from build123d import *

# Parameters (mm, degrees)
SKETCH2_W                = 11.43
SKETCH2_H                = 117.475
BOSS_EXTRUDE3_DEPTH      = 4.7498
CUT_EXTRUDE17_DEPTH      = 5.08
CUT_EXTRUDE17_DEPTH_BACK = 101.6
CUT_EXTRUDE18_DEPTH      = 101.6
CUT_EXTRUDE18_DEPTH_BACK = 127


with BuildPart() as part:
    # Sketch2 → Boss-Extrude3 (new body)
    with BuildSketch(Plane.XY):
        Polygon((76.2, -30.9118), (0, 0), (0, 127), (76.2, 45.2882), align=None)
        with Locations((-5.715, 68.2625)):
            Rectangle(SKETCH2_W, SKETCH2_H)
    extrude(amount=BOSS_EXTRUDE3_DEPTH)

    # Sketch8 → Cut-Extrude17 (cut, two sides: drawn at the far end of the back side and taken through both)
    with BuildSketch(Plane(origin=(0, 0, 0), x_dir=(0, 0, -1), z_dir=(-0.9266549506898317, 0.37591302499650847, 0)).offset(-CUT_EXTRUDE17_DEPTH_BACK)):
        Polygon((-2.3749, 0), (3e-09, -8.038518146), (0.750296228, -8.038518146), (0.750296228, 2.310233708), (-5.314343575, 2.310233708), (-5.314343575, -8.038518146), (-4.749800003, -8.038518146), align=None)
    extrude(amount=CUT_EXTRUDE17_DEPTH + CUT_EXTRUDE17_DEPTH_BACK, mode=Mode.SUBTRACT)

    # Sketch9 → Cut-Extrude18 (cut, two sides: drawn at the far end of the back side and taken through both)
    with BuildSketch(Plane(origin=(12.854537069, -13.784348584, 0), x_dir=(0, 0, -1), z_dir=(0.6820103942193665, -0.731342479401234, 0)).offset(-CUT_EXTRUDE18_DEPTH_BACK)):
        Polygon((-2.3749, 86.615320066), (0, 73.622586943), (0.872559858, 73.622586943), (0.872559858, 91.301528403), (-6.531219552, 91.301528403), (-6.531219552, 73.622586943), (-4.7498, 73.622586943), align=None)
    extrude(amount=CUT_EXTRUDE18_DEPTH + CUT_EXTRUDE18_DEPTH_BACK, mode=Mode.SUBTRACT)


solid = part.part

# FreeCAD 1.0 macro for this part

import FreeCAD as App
import Part
import Sketcher

V = App.Vector
Q = App.Units.Quantity

doc = App.newDocument("Part")
params = doc.addObject("Spreadsheet::Sheet", "Params")
for row, (alias, value) in enumerate([
    ("sketch1_height", "3 in"),
    ("sketch1_width", "0.45 in"),
    ("sketch1_height2", "4.625 in"),
    ("pad1_length", "0.187 in"),
    ("sketch2_length", "0.33 in"),
    ("pocket1_length", "0.2 in"),
    ("pocket1_length2", "4 in"),
    ("sketch3_length", "0.52 in"),
], start=1):
    params.set(f"A{row}", alias)
    params.set(f"B{row}", "=" + value)
    params.setAlias(f"B{row}", alias)

body = doc.addObject("PartDesign::Body", "Body")

# Sketch on XY plane
sketch1 = doc.addObject("Sketcher::SketchObject", "Sketch")
body.addObject(sketch1)
sketch1.AttachmentSupport = (doc.XY_Plane, [""])
sketch1.MapMode = "FlatFace"
sketch1.addGeometry([
    Part.LineSegment(V(0, 0, 0), V(76, -31, 0)),  # 0
    Part.LineSegment(V(76, -31, 0), V(76, 45, 0)),  # 1
    Part.LineSegment(V(76, 45, 0), V(0, 127, 0)),  # 2
    Part.LineSegment(V(0, 127, 0), V(-11, 127, 0)),  # 3
    Part.LineSegment(V(-11, 127, 0), V(-11, 10, 0)),  # 4
    Part.LineSegment(V(-11, 10, 0), V(0, 10, 0)),  # 5
    Part.LineSegment(V(0, 10, 0), V(0, 0, 0)),  # 6
], False)
sketch1.addConstraint([
    Sketcher.Constraint("Coincident", 0, 2, 1, 1),
    Sketcher.Constraint("Coincident", 1, 2, 2, 1),
    Sketcher.Constraint("Coincident", 2, 2, 3, 1),
    Sketcher.Constraint("Coincident", 3, 2, 4, 1),
    Sketcher.Constraint("Coincident", 4, 2, 5, 1),
    Sketcher.Constraint("Coincident", 5, 2, 6, 1),
    Sketcher.Constraint("Coincident", 6, 2, 0, 1),
    Sketcher.Constraint("Vertical", 1),
    Sketcher.Constraint("Horizontal", 3),
    Sketcher.Constraint("Vertical", 4),
    Sketcher.Constraint("Horizontal", 5),
    Sketcher.Constraint("Vertical", 6),
    Sketcher.Constraint("Coincident", 6, 2, -1, 1),
    Sketcher.Constraint("PointOnObject", 2, 2, -2),
    Sketcher.Constraint("DistanceY", 1, 1, 1, 2, Q("3 in")),
    Sketcher.Constraint("DistanceX", -1, 1, 0, 2, Q("3 in")),
    Sketcher.Constraint("DistanceY", -1, 1, 2, 2, Q("5 in")),
    Sketcher.Constraint("DistanceX", 3, 2, 3, 1, Q("0.45 in")),
    Sketcher.Constraint("DistanceY", 4, 2, 4, 1, Q("4.625 in")),
    Sketcher.Constraint("DistanceY", 0, 2, -1, 1, Q("1.217 in")),
])
sketch1.setExpression("Constraints[14]", "Params.sketch1_height")
sketch1.setExpression("Constraints[17]", "Params.sketch1_width")
sketch1.setExpression("Constraints[18]", "Params.sketch1_height2")
pad1 = doc.addObject("PartDesign::Pad", "Pad")
body.addObject(pad1)
pad1.Profile = sketch1
pad1.setExpression("Length", "Params.pad1_length")

# Sketch on an angled plane
sketch2 = doc.addObject("Sketcher::SketchObject", "Sketch001")
body.addObject(sketch2)
sketch2.Placement = App.Placement(V(0, 0, 0), App.Rotation(V(0, 0, -1), V(-0.375913025, -0.926654951, 0), V(-0.926654951, 0.375913025, 0), "ZXY"))
sketch2.addGeometry([
    Part.LineSegment(V(-2.4, 0, 0), V(0, -8, 0)),  # 0
    Part.LineSegment(V(0, -8, 0), V(0.8, -8, 0)),  # 1
    Part.LineSegment(V(0.8, -8, 0), V(0.8, 2.3, 0)),  # 2
    Part.LineSegment(V(0.8, 2.3, 0), V(-5.3, 2.3, 0)),  # 3
    Part.LineSegment(V(-5.3, 2.3, 0), V(-5.3, -8, 0)),  # 4
    Part.LineSegment(V(-5.3, -8, 0), V(-4.7, -8, 0)),  # 5
    Part.LineSegment(V(-4.7, -8, 0), V(-2.4, 0, 0)),  # 6
], False)
sketch2.addConstraint([
    Sketcher.Constraint("Coincident", 0, 2, 1, 1),
    Sketcher.Constraint("Coincident", 1, 2, 2, 1),
    Sketcher.Constraint("Coincident", 2, 2, 3, 1),
    Sketcher.Constraint("Coincident", 3, 2, 4, 1),
    Sketcher.Constraint("Coincident", 4, 2, 5, 1),
    Sketcher.Constraint("Coincident", 5, 2, 6, 1),
    Sketcher.Constraint("Coincident", 6, 2, 0, 1),
    Sketcher.Constraint("Horizontal", 1),
    Sketcher.Constraint("Vertical", 2),
    Sketcher.Constraint("Horizontal", 3),
    Sketcher.Constraint("Vertical", 4),
    Sketcher.Constraint("Horizontal", 5),
    Sketcher.Constraint("PointOnObject", 0, 2, -2),
    Sketcher.Constraint("PointOnObject", 6, 2, -1),
    Sketcher.Constraint("Horizontal", 1, 2, 4, 2),
    Sketcher.Constraint("Equal", 0, 6),
    Sketcher.Constraint("Distance", 0, Q("0.33 in")),
    Sketcher.Constraint("DistanceX", 5, 2, -1, 1, Q("0.187 in")),
    Sketcher.Constraint("DistanceX", 3, 2, 3, 1, 6.06464),
    Sketcher.Constraint("DistanceY", 2, 1, 2, 2, 10.348752),
    Sketcher.Constraint("DistanceX", 1, 1, 1, 2, 0.750296),
])
sketch2.setExpression("Constraints[16]", "Params.sketch2_length")
pocket1 = doc.addObject("PartDesign::Pocket", "Pocket")
body.addObject(pocket1)
pocket1.Profile = sketch2
pocket1.Type = "TwoLengths"
pocket1.setExpression("Length", "Params.pocket1_length")
pocket1.setExpression("Length2", "Params.pocket1_length2")
pocket1.Reversed = True

# Sketch on an angled plane
sketch3 = doc.addObject("Sketcher::SketchObject", "Sketch002")
body.addObject(sketch3)
sketch3.Placement = App.Placement(V(12.854537, -13.784349, 0), App.Rotation(V(0, 0, -1), V(0.731342479, 0.682010394, 0), V(0.682010394, -0.731342479, 0), "ZXY"))
sketch3.addGeometry([
    Part.LineSegment(V(-2.4, 86.6, 0), V(0, 73.6, 0)),  # 0
    Part.LineSegment(V(0, 73.6, 0), V(0.9, 73.6, 0)),  # 1
    Part.LineSegment(V(0.9, 73.6, 0), V(0.9, 91.3, 0)),  # 2
    Part.LineSegment(V(0.9, 91.3, 0), V(-6.5, 91.3, 0)),  # 3
    Part.LineSegment(V(-6.5, 91.3, 0), V(-6.5, 73.6, 0)),  # 4
    Part.LineSegment(V(-6.5, 73.6, 0), V(-4.7, 73.6, 0)),  # 5
    Part.LineSegment(V(-4.7, 73.6, 0), V(-2.4, 86.6, 0)),  # 6
], False)
sketch3.addConstraint([
    Sketcher.Constraint("Coincident", 0, 2, 1, 1),
    Sketcher.Constraint("Coincident", 1, 2, 2, 1),
    Sketcher.Constraint("Coincident", 2, 2, 3, 1),
    Sketcher.Constraint("Coincident", 3, 2, 4, 1),
    Sketcher.Constraint("Coincident", 4, 2, 5, 1),
    Sketcher.Constraint("Coincident", 5, 2, 6, 1),
    Sketcher.Constraint("Coincident", 6, 2, 0, 1),
    Sketcher.Constraint("Horizontal", 1),
    Sketcher.Constraint("Vertical", 2),
    Sketcher.Constraint("Horizontal", 3),
    Sketcher.Constraint("Vertical", 4),
    Sketcher.Constraint("Horizontal", 5),
    Sketcher.Constraint("PointOnObject", 0, 2, -2),
    Sketcher.Constraint("Horizontal", 1, 2, 4, 2),
    Sketcher.Constraint("Equal", 0, 6),
    Sketcher.Constraint("Distance", 0, Q("0.52 in")),
    Sketcher.Constraint("DistanceX", 5, 2, -1, 1, Q("0.187 in")),
    Sketcher.Constraint("DistanceX", 1, 1, 1, 2, 0.87256),
    Sketcher.Constraint("DistanceX", 3, 2, 3, 1, 7.403779),
    Sketcher.Constraint("DistanceY", 2, 1, 2, 2, 17.678941),
    Sketcher.Constraint("DistanceY", -1, 1, 2, 2, 91.301528),
])
sketch3.setExpression("Constraints[15]", "Params.sketch3_length")
pocket2 = doc.addObject("PartDesign::Pocket", "Pocket001")
body.addObject(pocket2)
pocket2.Profile = sketch3
pocket2.Type = "ThroughAll"
pocket2.Midplane = True

doc.recompute()
